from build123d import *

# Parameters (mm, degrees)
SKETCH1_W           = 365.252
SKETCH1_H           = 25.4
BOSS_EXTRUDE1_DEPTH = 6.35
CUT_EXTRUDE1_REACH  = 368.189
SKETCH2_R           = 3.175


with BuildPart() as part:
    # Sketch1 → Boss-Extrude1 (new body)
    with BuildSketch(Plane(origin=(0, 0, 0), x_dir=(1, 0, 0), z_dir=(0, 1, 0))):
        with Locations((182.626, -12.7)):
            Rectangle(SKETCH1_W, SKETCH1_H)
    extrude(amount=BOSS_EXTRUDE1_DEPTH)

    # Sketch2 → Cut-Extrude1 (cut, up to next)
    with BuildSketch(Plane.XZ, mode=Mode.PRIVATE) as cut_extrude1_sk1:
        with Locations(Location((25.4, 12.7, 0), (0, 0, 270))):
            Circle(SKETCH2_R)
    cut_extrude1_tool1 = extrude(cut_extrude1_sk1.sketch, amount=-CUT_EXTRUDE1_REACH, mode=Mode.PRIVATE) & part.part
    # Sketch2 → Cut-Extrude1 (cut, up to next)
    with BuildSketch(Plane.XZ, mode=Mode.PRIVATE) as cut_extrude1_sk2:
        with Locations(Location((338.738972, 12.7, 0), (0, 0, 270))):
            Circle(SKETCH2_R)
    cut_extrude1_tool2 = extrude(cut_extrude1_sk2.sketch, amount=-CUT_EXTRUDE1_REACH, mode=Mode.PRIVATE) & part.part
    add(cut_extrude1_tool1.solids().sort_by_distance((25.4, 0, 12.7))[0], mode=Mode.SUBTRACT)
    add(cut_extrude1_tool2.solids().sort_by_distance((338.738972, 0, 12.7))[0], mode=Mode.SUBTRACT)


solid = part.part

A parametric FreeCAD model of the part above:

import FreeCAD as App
import Part
import Sketcher
Q = App.Units.Quantity


def add_polygon(sketch, points):
    """Adds a closed chain of lines whose ends are joined by coincident constraints."""
    first, n = sketch.GeometryCount, len(points)
    for a, b in zip(points, points[1:] + points[:1]):
        sketch.addGeometry(Part.LineSegment(App.Vector(*a, 0), App.Vector(*b, 0)), False)
    for i in range(n):
        sketch.addConstraint(Sketcher.Constraint("Coincident", first + i, 2, first + (i + 1) % n, 1))

doc = App.newDocument("Part")
params = doc.addObject("Spreadsheet::Sheet", "Params")
for row, (alias, value) in enumerate([
    ("sketch1_height", "1 in"),
    ("sketch1_width", "14.38 in"),
    ("pad1_length", "0.25 in"),
    ("sketch2_diameter", "0.25 in"),
    ("sketch3_diameter", "0.25 in"),
], start=1):
    params.set(f"A{row}", alias)
    params.set(f"B{row}", "=" + value)
    params.setAlias(f"B{row}", alias)

body = doc.addObject("PartDesign::Body", "Body")

sketch1 = body.newObject("Sketcher::SketchObject", "Sketch")
sketch1.AttachmentSupport = (doc.getObject("XZ_Plane"), [""])
sketch1.MapMode = "FlatFace"
add_polygon(sketch1, [(0, 0), (0, 25), (365, 25), (365, 0)])
sketch1.addConstraint([
    Sketcher.Constraint("Vertical", 0),
    Sketcher.Constraint("Horizontal", 1),
    Sketcher.Constraint("Vertical", 2),
    Sketcher.Constraint("Horizontal", 3),
    Sketcher.Constraint("Coincident", 3, 2, -1, 1),
    Sketcher.Constraint("DistanceY", 0, 1, 0, 2, Q("1 in")),
    Sketcher.Constraint("DistanceX", 1, 1, 1, 2, Q("14.38 in")),
])
sketch1.setExpression("Constraints[9]", "Params.sketch1_height")
sketch1.setExpression("Constraints[10]", "Params.sketch1_width")
pad1 = body.newObject("PartDesign::Pad", "Pad")
pad1.Profile = sketch1
pad1.setExpression("Length", "Params.pad1_length")
pad1.Reversed = True

sketch2 = body.newObject("Sketcher::SketchObject", "Sketch001")
sketch2.AttachmentSupport = (doc.getObject("XZ_Plane"), [""])
sketch2.MapMode = "FlatFace"
sketch2.addGeometry(Part.Circle(App.Vector(25.4, 12.7, 0), App.Vector(0, 0, 1), 3.2), False)
sketch2.addConstraint([
    Sketcher.Constraint("Diameter", 0, Q("0.25 in")),
    Sketcher.Constraint("DistanceX", -1, 1, 0, 3, Q("1 in")),
    Sketcher.Constraint("DistanceY", -1, 1, 0, 3, Q("0.5 in")),
])
sketch2.setExpression("Constraints[0]", "Params.sketch2_diameter")
pocket1 = body.newObject("PartDesign::Pocket", "Pocket")
pocket1.Profile = sketch2
pocket1.Type = "UpToFirst"

sketch3 = body.newObject("Sketcher::SketchObject", "Sketch002")
sketch3.AttachmentSupport = (doc.getObject("XZ_Plane"), [""])
sketch3.MapMode = "FlatFace"
sketch3.addGeometry(Part.Circle(App.Vector(338.7, 12.7, 0), App.Vector(0, 0, 1), 3.2), False)
sketch3.addConstraint([
    Sketcher.Constraint("Diameter", 0, Q("0.25 in")),
    Sketcher.Constraint("DistanceY", -1, 1, 0, 3, Q("0.5 in")),
    Sketcher.Constraint("DistanceX", -1, 1, 0, 3, Q("338.738972 mm")),
])
sketch3.setExpression("Constraints[0]", "Params.sketch3_diameter")
pocket2 = body.newObject("PartDesign::Pocket", "Pocket001")
pocket2.Profile = sketch3
pocket2.Type = "UpToFirst"

doc.recompute()
